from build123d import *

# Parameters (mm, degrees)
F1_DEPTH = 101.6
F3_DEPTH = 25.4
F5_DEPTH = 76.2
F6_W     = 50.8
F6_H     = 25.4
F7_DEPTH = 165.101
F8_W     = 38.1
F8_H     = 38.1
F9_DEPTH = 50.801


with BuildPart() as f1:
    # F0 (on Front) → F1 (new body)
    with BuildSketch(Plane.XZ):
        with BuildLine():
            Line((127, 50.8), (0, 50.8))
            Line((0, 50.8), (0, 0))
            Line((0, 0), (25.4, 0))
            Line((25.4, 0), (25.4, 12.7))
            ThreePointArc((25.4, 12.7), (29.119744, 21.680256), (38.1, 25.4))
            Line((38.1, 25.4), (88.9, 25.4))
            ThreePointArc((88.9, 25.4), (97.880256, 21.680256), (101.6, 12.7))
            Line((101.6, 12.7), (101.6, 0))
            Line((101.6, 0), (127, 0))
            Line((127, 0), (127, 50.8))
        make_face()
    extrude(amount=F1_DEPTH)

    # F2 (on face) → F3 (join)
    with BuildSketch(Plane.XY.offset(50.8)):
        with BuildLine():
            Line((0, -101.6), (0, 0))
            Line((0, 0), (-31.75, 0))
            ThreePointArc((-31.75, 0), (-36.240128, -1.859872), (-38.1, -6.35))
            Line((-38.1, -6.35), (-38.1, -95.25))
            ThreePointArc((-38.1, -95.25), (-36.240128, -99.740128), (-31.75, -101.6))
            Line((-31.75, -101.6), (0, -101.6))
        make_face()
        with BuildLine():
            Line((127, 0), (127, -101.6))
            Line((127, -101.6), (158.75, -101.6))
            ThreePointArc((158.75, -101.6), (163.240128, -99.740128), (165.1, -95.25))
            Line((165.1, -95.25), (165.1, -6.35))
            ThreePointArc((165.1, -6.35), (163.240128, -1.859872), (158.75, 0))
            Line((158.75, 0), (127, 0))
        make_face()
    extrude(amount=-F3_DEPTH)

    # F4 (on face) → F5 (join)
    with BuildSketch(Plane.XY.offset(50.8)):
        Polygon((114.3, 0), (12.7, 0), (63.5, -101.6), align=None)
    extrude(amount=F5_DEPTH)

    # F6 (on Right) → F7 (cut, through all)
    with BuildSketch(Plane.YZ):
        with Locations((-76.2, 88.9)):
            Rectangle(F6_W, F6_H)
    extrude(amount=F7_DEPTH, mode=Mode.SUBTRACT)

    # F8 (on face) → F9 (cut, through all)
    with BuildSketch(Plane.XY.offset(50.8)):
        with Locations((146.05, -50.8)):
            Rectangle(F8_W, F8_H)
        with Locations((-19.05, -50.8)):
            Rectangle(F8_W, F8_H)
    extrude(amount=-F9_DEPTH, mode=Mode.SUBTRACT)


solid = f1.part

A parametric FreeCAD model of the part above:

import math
import FreeCAD as App
import Part
import Sketcher

V = App.Vector
Q = App.Units.Quantity


def add_polygon(sketch, points):
    """Adds a closed chain of lines whose ends are joined by coincident constraints."""
    first, n = sketch.GeometryCount, len(points)
    for a, b in zip(points, points[1:] + points[:1]):
        sketch.addGeometry(Part.LineSegment(App.Vector(*a, 0), App.Vector(*b, 0)), False)
    for i in range(n):
        sketch.addConstraint(Sketcher.Constraint("Coincident", first + i, 2, first + (i + 1) % n, 1))

doc = App.newDocument("Part")
body = doc.addObject("PartDesign::Body", "Body")

# Sketch on XZ plane
sketch1 = body.newObject("Sketcher::SketchObject", "Sketch")
sketch1.AttachmentSupport = (doc.getObject("XZ_Plane"), [""])
sketch1.MapMode = "FlatFace"
sketch1.addGeometry([
    Part.LineSegment(V(127, 51, 0), V(0, 51, 0)),  # 0
    Part.LineSegment(V(0, 51, 0), V(0, 0, 0)),  # 1
    Part.LineSegment(V(0, 0, 0), V(25, 0, 0)),  # 2
    Part.LineSegment(V(25, 0, 0), V(25, 13, 0)),  # 3
    Part.ArcOfCircle(Part.Circle(V(38, 13, 0), V(0, 0, 1), 13), math.radians(90), math.radians(180)),  # 4
    Part.LineSegment(V(38, 25, 0), V(89, 25, 0)),  # 5
    Part.ArcOfCircle(Part.Circle(V(89, 13, 0), V(0, 0, 1), 13), math.radians(0), math.radians(90)),  # 6
    Part.LineSegment(V(102, 13, 0), V(102, 0, 0)),  # 7
    Part.LineSegment(V(102, 0, 0), V(127, 0, 0)),  # 8
    Part.LineSegment(V(127, 0, 0), V(127, 51, 0)),  # 9
], False)
sketch1.addConstraint([
    Sketcher.Constraint("Coincident", 0, 2, 1, 1),
    Sketcher.Constraint("Coincident", 1, 2, 2, 1),
    Sketcher.Constraint("Coincident", 2, 2, 3, 1),
    Sketcher.Constraint("Tangent", 3, 2, 4, 2),
    Sketcher.Constraint("Tangent", 4, 1, 5, 1),
    Sketcher.Constraint("Tangent", 5, 2, 6, 2),
    Sketcher.Constraint("Tangent", 6, 1, 7, 1),
    Sketcher.Constraint("Coincident", 7, 2, 8, 1),
    Sketcher.Constraint("Coincident", 8, 2, 9, 1),
    Sketcher.Constraint("Coincident", 9, 2, 0, 1),
    Sketcher.Constraint("Horizontal", 0),
    Sketcher.Constraint("Vertical", 1),
    Sketcher.Constraint("Horizontal", 2),
    Sketcher.Constraint("Vertical", 3),
    Sketcher.Constraint("Horizontal", 5),
    Sketcher.Constraint("Vertical", 7),
    Sketcher.Constraint("Horizontal", 8),
    Sketcher.Constraint("Vertical", 9),
    Sketcher.Constraint("Coincident", 1, 2, -1, 1),
    Sketcher.Constraint("Equal", 4, 6),
    Sketcher.Constraint("PointOnObject", 7, 2, -1),
    Sketcher.Constraint("Equal", 2, 8),
    Sketcher.Constraint("Equal", 5, 1),
    Sketcher.Constraint("Radius", 4, Q("0.5 in")),
    Sketcher.Constraint("DistanceX", 0, 2, 0, 1, Q("5 in")),
    Sketcher.Constraint("DistanceX", 2, 1, 2, 2, Q("1 in")),
    Sketcher.Constraint("DistanceY", 3, 1, 3, 2, Q("0.5 in")),
])
pad1 = body.newObject("PartDesign::Pad", "Pad")
pad1.Profile = sketch1
pad1.Length = Q("4 in")

# Sketch on XY plane
sketch2 = body.newObject("Sketcher::SketchObject", "Sketch001")
sketch2.AttachmentSupport = (doc.getObject("XY_Plane"), [""])
sketch2.MapMode = "FlatFace"
sketch2.AttachmentOffset = App.Placement(V(0, 0, 2 * 25.4), App.Rotation())
sketch2.addGeometry([
    Part.LineSegment(V(0, -102, 0), V(0, 0, 0)),  # 0
    Part.LineSegment(V(0, 0, 0), V(-32, 0, 0)),  # 1
    Part.ArcOfCircle(Part.Circle(V(-32, -6, 0), V(0, 0, 1), 6), math.radians(90), math.radians(180)),  # 2
    Part.LineSegment(V(-38, -6, 0), V(-38, -95, 0)),  # 3
    Part.ArcOfCircle(Part.Circle(V(-32, -95, 0), V(0, 0, 1), 6), math.radians(-180), math.radians(-90)),  # 4
    Part.LineSegment(V(-32, -102, 0), V(0, -102, 0)),  # 5
    Part.LineSegment(V(127, 0, 0), V(127, -102, 0)),  # 6
    Part.LineSegment(V(127, -102, 0), V(159, -102, 0)),  # 7
    Part.ArcOfCircle(Part.Circle(V(159, -95, 0), V(0, 0, 1), 6), math.radians(-90), math.radians(0)),  # 8
    Part.LineSegment(V(165, -95, 0), V(165, -6, 0)),  # 9
    Part.ArcOfCircle(Part.Circle(V(159, -6, 0), V(0, 0, 1), 6), math.radians(0), math.radians(90)),  # 10
    Part.LineSegment(V(159, 0, 0), V(127, 0, 0)),  # 11
], False)
sketch2.addConstraint([
    Sketcher.Constraint("Coincident", 0, 2, 1, 1),
    Sketcher.Constraint("Tangent", 1, 2, 2, 1),
    Sketcher.Constraint("Tangent", 2, 2, 3, 1),
    Sketcher.Constraint("Tangent", 3, 2, 4, 1),
    Sketcher.Constraint("Tangent", 4, 2, 5, 1),
    Sketcher.Constraint("Coincident", 5, 2, 0, 1),
    Sketcher.Constraint("Coincident", 6, 2, 7, 1),
    Sketcher.Constraint("Tangent", 7, 2, 8, 1),
    Sketcher.Constraint("Tangent", 8, 2, 9, 1),
    Sketcher.Constraint("Tangent", 9, 2, 10, 1),
    Sketcher.Constraint("Tangent", 10, 2, 11, 1),
    Sketcher.Constraint("Coincident", 11, 2, 6, 1),
    Sketcher.Constraint("Vertical", 0),
    Sketcher.Constraint("Horizontal", 1),
    Sketcher.Constraint("Vertical", 3),
    Sketcher.Constraint("Horizontal", 5),
    Sketcher.Constraint("Vertical", 6),
    Sketcher.Constraint("Horizontal", 7),
    Sketcher.Constraint("Vertical", 9),
    Sketcher.Constraint("Horizontal", 11),
    Sketcher.Constraint("Coincident", 0, 2, -1, 1),
    Sketcher.Constraint("Equal", 2, 4),
    Sketcher.Constraint("Equal", 4, 8),
    Sketcher.Constraint("Equal", 8, 10),
    Sketcher.Constraint("PointOnObject", 10, 2, -1),
    Sketcher.Constraint("Horizontal", 4, 3, 8, 3),
    Sketcher.Constraint("Equal", 5, 7),
    Sketcher.Constraint("DistanceY", 0, 1, 0, 2, Q("4 in")),
    Sketcher.Constraint("Radius", 2, Q("0.25 in")),
    Sketcher.Constraint("DistanceX", -1, 1, 6, 2, Q("5 in")),
    Sketcher.Constraint("DistanceX", 1, 2, 1, 1, Q("1.25 in")),
])
pad2 = body.newObject("PartDesign::Pad", "Pad001")
pad2.Profile = sketch2
pad2.Length = Q("1 in")
pad2.Reversed = True

# Sketch on XY plane
sketch3 = body.newObject("Sketcher::SketchObject", "Sketch002")
sketch3.AttachmentSupport = (doc.getObject("XY_Plane"), [""])
sketch3.MapMode = "FlatFace"
sketch3.AttachmentOffset = App.Placement(V(0, 0, 2 * 25.4), App.Rotation())
add_polygon(sketch3, [(114, 0), (13, 0), (64, -102)])  # lines 0-2
sketch3.addConstraint([
    Sketcher.Constraint("Horizontal", 0),
    Sketcher.Constraint("PointOnObject", 0, 2, -1),
    Sketcher.Constraint("Equal", 1, 2),
    Sketcher.Constraint("DistanceX", 0, 2, 0, 1, Q("4 in")),
    Sketcher.Constraint("DistanceY", 1, 2, -1, 1, Q("4 in")),
    Sketcher.Constraint("DistanceX", -1, 1, 0, 2, Q("0.5 in")),
])
pad3 = body.newObject("PartDesign::Pad", "Pad002")
pad3.Profile = sketch3
pad3.Length = Q("3 in")

# Sketch on YZ plane
sketch4 = body.newObject("Sketcher::SketchObject", "Sketch003")
sketch4.AttachmentSupport = (doc.getObject("YZ_Plane"), [""])
sketch4.MapMode = "FlatFace"
add_polygon(sketch4, [(-102, 102), (-102, 76), (-51, 76), (-51, 102)])  # lines 0-3
sketch4.addConstraint([
    Sketcher.Constraint("Vertical", 0),
    Sketcher.Constraint("Horizontal", 1),
    Sketcher.Constraint("Vertical", 2),
    Sketcher.Constraint("Horizontal", 3),
    Sketcher.Constraint("DistanceX", 1, 1, 1, 2, Q("2 in")),
    Sketcher.Constraint("DistanceY", 0, 2, 0, 1, Q("1 in")),
    Sketcher.Constraint("DistanceX", 0, 2, -1, 1, Q("4 in")),
    Sketcher.Constraint("DistanceY", -1, 1, 0, 2, Q("3 in")),
])
pocket1 = body.newObject("PartDesign::Pocket", "Pocket")
pocket1.Profile = sketch4
pocket1.Type = "ThroughAll"
pocket1.Reversed = True

# Sketch on XY plane
sketch5 = body.newObject("Sketcher::SketchObject", "Sketch004")
sketch5.AttachmentSupport = (doc.getObject("XY_Plane"), [""])
sketch5.MapMode = "FlatFace"
sketch5.AttachmentOffset = App.Placement(V(0, 0, 2 * 25.4), App.Rotation())
add_polygon(sketch5, [(127, -32), (127, -70), (165, -70), (165, -32)])  # lines 0-3
add_polygon(sketch5, [(-38, -32), (-38, -70), (0, -70), (0, -32)])  # lines 4-7
sketch5.addConstraint([
    Sketcher.Constraint("Vertical", 0),
    Sketcher.Constraint("Horizontal", 1),
    Sketcher.Constraint("Vertical", 2),
    Sketcher.Constraint("Horizontal", 3),
    Sketcher.Constraint("Vertical", 4),
    Sketcher.Constraint("Horizontal", 5),
    Sketcher.Constraint("Vertical", 6),
    Sketcher.Constraint("Horizontal", 7),
    Sketcher.Constraint("PointOnObject", 5, 2, -2),
    Sketcher.Constraint("Horizontal", 1, 2, 4, 2),
    Sketcher.Constraint("Horizontal", 3, 2, 6, 2),
    Sketcher.Constraint("Equal", 3, 5),
    Sketcher.Constraint("Equal", 7, 0),
    Sketcher.Constraint("DistanceX", 1, 1, 1, 2, Q("1.5 in")),
    Sketcher.Constraint("DistanceX", -1, 1, 0, 2, Q("5 in")),
    Sketcher.Constraint("DistanceY", 0, 2, -1, 1, Q("2.75 in")),
])
pocket2 = body.newObject("PartDesign::Pocket", "Pocket001")
pocket2.Profile = sketch5
pocket2.Type = "ThroughAll"

doc.recompute()
